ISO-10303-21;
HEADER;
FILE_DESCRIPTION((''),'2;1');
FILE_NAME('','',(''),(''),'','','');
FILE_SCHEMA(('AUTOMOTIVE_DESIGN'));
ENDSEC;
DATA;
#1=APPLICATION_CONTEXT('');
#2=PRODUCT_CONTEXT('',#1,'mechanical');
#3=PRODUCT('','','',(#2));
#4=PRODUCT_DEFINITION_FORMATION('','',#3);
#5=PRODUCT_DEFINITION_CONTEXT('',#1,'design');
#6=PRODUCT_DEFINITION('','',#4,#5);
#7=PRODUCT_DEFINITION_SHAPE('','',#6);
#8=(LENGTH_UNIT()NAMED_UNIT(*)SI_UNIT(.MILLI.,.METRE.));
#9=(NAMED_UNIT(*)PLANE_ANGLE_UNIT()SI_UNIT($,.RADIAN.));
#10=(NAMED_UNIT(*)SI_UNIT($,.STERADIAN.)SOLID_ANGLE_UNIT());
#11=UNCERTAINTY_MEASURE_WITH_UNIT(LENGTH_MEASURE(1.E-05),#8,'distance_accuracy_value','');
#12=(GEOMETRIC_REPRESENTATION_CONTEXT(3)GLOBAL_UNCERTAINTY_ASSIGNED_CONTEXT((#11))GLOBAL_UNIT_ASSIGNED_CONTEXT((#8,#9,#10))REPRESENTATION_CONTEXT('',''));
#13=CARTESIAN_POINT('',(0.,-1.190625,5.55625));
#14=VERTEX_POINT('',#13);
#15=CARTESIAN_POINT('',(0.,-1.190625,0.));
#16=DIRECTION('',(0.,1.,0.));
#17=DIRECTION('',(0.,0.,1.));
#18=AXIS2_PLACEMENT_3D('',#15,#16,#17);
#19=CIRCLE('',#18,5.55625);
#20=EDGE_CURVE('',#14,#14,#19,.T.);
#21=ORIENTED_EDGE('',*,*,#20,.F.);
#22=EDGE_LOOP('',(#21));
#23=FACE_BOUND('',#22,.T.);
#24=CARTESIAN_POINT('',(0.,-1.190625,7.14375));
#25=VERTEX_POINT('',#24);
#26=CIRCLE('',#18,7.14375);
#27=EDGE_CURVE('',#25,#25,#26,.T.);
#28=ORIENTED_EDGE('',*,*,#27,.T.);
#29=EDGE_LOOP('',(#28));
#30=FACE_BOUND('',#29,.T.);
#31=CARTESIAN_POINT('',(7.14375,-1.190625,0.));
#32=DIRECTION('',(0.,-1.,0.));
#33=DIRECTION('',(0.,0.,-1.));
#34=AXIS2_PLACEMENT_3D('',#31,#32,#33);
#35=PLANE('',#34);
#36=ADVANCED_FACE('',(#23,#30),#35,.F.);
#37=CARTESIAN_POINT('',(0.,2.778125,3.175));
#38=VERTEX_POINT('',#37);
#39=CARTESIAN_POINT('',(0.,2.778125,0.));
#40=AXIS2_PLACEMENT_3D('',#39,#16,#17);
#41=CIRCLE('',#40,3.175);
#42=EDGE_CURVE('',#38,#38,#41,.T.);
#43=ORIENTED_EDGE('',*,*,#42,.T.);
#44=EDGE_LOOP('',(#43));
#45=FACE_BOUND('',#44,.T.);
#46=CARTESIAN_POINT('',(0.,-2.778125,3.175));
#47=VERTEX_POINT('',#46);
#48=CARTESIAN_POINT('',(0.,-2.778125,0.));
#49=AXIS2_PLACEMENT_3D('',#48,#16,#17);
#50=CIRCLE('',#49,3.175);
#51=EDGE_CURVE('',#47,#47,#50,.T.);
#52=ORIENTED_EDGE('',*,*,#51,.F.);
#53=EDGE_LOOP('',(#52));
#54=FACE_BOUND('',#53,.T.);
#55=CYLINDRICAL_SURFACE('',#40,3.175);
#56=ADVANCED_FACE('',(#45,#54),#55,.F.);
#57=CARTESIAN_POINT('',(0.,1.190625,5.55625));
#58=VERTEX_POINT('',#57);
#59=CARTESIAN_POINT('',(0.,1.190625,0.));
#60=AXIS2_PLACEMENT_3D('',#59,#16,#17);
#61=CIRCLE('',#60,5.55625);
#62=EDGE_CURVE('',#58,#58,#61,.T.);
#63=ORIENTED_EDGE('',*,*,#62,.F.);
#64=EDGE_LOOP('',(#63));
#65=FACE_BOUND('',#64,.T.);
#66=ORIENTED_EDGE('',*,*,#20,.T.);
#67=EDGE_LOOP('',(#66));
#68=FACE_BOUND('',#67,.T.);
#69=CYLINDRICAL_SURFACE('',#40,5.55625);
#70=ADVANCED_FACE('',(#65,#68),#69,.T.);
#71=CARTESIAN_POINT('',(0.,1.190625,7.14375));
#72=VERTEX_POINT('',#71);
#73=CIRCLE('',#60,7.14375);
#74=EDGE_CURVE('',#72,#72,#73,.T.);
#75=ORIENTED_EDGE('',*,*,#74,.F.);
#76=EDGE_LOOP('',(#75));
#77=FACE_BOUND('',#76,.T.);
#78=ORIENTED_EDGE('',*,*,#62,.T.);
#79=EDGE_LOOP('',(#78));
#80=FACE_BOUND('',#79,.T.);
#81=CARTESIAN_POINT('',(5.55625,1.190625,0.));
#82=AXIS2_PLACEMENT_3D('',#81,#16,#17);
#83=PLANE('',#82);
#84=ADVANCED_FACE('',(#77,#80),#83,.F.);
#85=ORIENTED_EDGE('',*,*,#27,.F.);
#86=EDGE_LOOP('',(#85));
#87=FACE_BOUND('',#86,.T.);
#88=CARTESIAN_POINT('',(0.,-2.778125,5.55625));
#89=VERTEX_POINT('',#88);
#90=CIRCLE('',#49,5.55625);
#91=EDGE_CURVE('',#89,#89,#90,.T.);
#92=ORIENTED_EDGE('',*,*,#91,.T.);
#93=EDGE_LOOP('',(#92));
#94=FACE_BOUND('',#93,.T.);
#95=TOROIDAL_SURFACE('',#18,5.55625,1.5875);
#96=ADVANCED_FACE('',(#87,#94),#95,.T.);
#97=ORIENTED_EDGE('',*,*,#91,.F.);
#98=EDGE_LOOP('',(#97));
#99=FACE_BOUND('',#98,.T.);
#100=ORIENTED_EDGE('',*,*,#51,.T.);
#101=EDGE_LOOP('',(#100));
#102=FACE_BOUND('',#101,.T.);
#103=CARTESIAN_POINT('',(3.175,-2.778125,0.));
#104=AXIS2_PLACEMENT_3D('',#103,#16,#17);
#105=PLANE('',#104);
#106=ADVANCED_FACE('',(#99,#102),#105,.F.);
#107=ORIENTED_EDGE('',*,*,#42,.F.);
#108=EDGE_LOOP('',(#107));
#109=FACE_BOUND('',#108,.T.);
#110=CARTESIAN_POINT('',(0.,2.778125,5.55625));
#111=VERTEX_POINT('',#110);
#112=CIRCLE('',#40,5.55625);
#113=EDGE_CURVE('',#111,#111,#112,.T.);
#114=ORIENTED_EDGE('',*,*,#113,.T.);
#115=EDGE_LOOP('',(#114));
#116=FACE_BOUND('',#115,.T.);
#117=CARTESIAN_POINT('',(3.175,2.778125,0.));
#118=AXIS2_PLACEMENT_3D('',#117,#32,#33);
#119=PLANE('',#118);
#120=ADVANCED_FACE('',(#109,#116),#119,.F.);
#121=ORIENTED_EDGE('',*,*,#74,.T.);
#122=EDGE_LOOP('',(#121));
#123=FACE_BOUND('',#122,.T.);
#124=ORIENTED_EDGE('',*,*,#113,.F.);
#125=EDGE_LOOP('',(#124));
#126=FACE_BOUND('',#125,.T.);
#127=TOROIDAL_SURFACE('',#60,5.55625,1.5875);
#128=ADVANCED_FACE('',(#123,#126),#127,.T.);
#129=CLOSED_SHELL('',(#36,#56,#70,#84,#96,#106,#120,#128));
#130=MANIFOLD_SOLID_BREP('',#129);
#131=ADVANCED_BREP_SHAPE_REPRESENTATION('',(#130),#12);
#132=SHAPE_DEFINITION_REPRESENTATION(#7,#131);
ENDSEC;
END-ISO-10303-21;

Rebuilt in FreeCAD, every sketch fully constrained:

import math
import FreeCAD as App
import Part
import Sketcher
Q = App.Units.Quantity

doc = App.newDocument("Part")
body = doc.addObject("PartDesign::Body", "Body")

# Sketch on XY plane
sketch1 = body.newObject("Sketcher::SketchObject", "Sketch")
sketch1.AttachmentSupport = (doc.getObject("XY_Plane"), [""])
sketch1.MapMode = "FlatFace"
sketch1.addGeometry(Part.LineSegment(App.Vector(5.55625, 1.190625, 0), App.Vector(7.14375, 1.190625, 0)), False)
sketch1.addGeometry(Part.ArcOfCircle(Part.Circle(App.Vector(5.55625, 1.190625, 0), App.Vector(0, 0, 1), 1.5875), math.radians(0), math.radians(90)), False)
sketch1.addGeometry(Part.LineSegment(App.Vector(5.55625, 2.778125, 0), App.Vector(3.175, 2.778125, 0)), False)
sketch1.addGeometry(Part.LineSegment(App.Vector(3.175, 2.778125, 0), App.Vector(3.175, -2.778125, 0)), False)
sketch1.addGeometry(Part.LineSegment(App.Vector(3.175, -2.778125, 0), App.Vector(5.55625, -2.778125, 0)), False)
sketch1.addGeometry(Part.ArcOfCircle(Part.Circle(App.Vector(5.55625, -1.190625, 0), App.Vector(0, 0, 1), 1.5875), math.radians(-90), math.radians(0)), False)
sketch1.addGeometry(Part.LineSegment(App.Vector(7.14375, -1.190625, 0), App.Vector(5.55625, -1.190625, 0)), False)
sketch1.addGeometry(Part.LineSegment(App.Vector(5.55625, -1.190625, 0), App.Vector(5.55625, 1.190625, 0)), False)
sketch1.addConstraint(Sketcher.Constraint("Coincident", 0, 2, 1, 1))
sketch1.addConstraint(Sketcher.Constraint("Tangent", 1, 2, 2, 1))
sketch1.addConstraint(Sketcher.Constraint("Coincident", 2, 2, 3, 1))
sketch1.addConstraint(Sketcher.Constraint("Coincident", 3, 2, 4, 1))
sketch1.addConstraint(Sketcher.Constraint("Tangent", 4, 2, 5, 1))
sketch1.addConstraint(Sketcher.Constraint("Coincident", 5, 2, 6, 1))
sketch1.addConstraint(Sketcher.Constraint("Coincident", 6, 2, 7, 1))
sketch1.addConstraint(Sketcher.Constraint("Coincident", 7, 2, 0, 1))
sketch1.addConstraint(Sketcher.Constraint("Horizontal", 0))
sketch1.addConstraint(Sketcher.Constraint("Horizontal", 2))
sketch1.addConstraint(Sketcher.Constraint("Vertical", 3))
sketch1.addConstraint(Sketcher.Constraint("Horizontal", 4))
sketch1.addConstraint(Sketcher.Constraint("Horizontal", 6))
sketch1.addConstraint(Sketcher.Constraint("Vertical", 7))
sketch1.addConstraint(Sketcher.Constraint("Coincident", 6, 2, 5, 3))
sketch1.addConstraint(Sketcher.Constraint("Coincident", 7, 2, 1, 3))
sketch1.addConstraint(Sketcher.Constraint("Equal", 1, 5))
sketch1.addConstraint(Sketcher.Constraint("Equal", 4, 7))
sketch1.addConstraint(Sketcher.Constraint("Radius", 1, Q("0.0625 in")))
sketch1.addConstraint(Sketcher.Constraint("DistanceX", 2, 2, 2, 1, Q("0.09375 in")))
sketch1.addConstraint(Sketcher.Constraint("DistanceX", -1, 1, 1, 3, Q("0.21875 in")))
sketch1.addConstraint(Sketcher.Constraint("DistanceY", -1, 1, 1, 3, Q("0.046875 in")))
revolution = body.newObject("PartDesign::Revolution", "Revolution")
revolution.Profile = sketch1
revolution.ReferenceAxis = (sketch1, ["V_Axis"])
revolution.Angle = 360

doc.recompute()
